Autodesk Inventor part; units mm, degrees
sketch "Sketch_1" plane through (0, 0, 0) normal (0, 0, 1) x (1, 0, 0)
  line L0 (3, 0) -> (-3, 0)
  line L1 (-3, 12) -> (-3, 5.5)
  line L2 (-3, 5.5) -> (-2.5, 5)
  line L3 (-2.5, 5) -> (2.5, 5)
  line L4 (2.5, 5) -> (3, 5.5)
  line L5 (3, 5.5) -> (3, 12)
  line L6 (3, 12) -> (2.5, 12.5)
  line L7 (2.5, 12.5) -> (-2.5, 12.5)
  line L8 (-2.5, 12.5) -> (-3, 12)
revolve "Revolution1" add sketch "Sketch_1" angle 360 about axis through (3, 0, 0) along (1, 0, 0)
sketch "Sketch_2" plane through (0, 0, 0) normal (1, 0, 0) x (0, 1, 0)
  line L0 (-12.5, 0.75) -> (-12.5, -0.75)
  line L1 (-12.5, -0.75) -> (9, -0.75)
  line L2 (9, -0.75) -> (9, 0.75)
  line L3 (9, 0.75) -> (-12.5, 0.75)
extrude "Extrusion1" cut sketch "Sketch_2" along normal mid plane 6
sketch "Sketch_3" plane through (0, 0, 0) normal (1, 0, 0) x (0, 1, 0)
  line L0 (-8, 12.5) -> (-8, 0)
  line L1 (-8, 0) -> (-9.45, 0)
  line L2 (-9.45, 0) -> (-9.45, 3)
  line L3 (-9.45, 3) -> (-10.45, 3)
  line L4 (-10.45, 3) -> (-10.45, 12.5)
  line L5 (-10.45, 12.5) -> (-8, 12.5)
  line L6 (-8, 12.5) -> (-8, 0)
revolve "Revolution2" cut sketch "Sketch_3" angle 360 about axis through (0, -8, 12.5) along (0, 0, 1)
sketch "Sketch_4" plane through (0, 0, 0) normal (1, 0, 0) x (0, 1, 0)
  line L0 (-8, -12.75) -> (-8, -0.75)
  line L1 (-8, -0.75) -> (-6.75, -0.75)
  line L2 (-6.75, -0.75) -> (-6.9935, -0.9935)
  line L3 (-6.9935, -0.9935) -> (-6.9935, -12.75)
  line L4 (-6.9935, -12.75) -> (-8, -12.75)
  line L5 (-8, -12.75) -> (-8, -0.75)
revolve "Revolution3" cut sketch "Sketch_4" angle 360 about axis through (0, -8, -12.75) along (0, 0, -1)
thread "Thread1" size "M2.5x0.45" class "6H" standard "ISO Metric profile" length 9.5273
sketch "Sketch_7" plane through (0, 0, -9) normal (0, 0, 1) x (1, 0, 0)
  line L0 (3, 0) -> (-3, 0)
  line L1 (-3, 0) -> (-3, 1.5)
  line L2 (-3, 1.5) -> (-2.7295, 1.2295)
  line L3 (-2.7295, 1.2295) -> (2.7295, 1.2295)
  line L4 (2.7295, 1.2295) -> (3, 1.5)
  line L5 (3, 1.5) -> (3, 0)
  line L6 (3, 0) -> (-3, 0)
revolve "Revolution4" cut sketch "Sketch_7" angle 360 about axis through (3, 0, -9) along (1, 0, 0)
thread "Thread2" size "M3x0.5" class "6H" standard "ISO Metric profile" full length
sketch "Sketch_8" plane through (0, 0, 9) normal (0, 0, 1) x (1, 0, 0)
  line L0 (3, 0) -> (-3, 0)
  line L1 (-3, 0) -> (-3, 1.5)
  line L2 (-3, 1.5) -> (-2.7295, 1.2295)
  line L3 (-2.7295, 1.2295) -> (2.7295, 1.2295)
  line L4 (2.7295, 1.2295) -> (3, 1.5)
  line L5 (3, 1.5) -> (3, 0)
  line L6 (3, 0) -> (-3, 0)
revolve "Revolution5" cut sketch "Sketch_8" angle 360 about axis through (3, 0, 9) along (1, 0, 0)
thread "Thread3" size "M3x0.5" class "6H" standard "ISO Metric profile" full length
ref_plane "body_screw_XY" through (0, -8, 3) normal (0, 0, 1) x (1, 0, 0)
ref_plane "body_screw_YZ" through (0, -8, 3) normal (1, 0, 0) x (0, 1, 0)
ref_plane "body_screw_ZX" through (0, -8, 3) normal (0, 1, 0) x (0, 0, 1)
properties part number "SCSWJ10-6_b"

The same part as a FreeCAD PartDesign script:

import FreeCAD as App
import Part
import Sketcher
from FreeCAD import Vector
Q = App.Units.Quantity


def add_polygon(sketch, points):
    """Adds a closed chain of lines whose ends are joined by coincident constraints."""
    first, n = sketch.GeometryCount, len(points)
    for a, b in zip(points, points[1:] + points[:1]):
        sketch.addGeometry(Part.LineSegment(App.Vector(*a, 0), App.Vector(*b, 0)), False)
    for i in range(n):
        sketch.addConstraint(Sketcher.Constraint("Coincident", first + i, 2, first + (i + 1) % n, 1))

doc = App.newDocument("Part")
body = doc.addObject("PartDesign::Body", "Body")

# Sketch on XY plane
sketch1 = body.newObject("Sketcher::SketchObject", "Sketch")
sketch1.AttachmentSupport = (doc.getObject("XY_Plane"), [""])
sketch1.MapMode = "FlatFace"
add_polygon(sketch1, [(-2.5, 12.5), (-3, 12), (-3, 5.5), (-2.5, 5), (2.5, 5), (3, 5.5), (3, 12), (2.5, 12.5)])  # lines 0-7
sketch1.addConstraint(Sketcher.Constraint("Vertical", 1))
sketch1.addConstraint(Sketcher.Constraint("Horizontal", 3))
sketch1.addConstraint(Sketcher.Constraint("Vertical", 5))
sketch1.addConstraint(Sketcher.Constraint("Horizontal", 7))
sketch1.addConstraint(Sketcher.Constraint("Symmetric", 1, 2, 4, 2, -2))
sketch1.addConstraint(Sketcher.Constraint("Perpendicular", 0, 2))
sketch1.addConstraint(Sketcher.Constraint("Perpendicular", 2, 4))
sketch1.addConstraint(Sketcher.Constraint("Perpendicular", 4, 6))
sketch1.addConstraint(Sketcher.Constraint("Horizontal", 0, 2, 5, 2))
sketch1.addConstraint(Sketcher.Constraint("Vertical", 3, 2, 6, 2))
sketch1.addConstraint(Sketcher.Constraint("Vertical", 2, 2, 7, 2))
sketch1.addConstraint(Sketcher.Constraint("DistanceX", 3, 1, 3, 2, 5.0))
sketch1.addConstraint(Sketcher.Constraint("DistanceY", 1, 2, 1, 1, 6.5))
sketch1.addConstraint(Sketcher.Constraint("DistanceX", 0, 2, -1, 1, 3.0))
sketch1.addConstraint(Sketcher.Constraint("DistanceY", -1, 1, 0, 2, 12.0))
revolution = body.newObject("PartDesign::Revolution", "Revolution")
revolution.Profile = sketch1
revolution.ReferenceAxis = (sketch1, ["H_Axis"])
revolution.Angle = 360

# Sketch on YZ plane
sketch2 = body.newObject("Sketcher::SketchObject", "Sketch001")
sketch2.AttachmentSupport = (doc.getObject("YZ_Plane"), [""])
sketch2.MapMode = "FlatFace"
add_polygon(sketch2, [(9, 0.8), (-12.5, 0.8), (-12.5, -0.8), (9, -0.8)])  # lines 0-3
sketch2.addConstraint(Sketcher.Constraint("Horizontal", 0))
sketch2.addConstraint(Sketcher.Constraint("Vertical", 1))
sketch2.addConstraint(Sketcher.Constraint("Horizontal", 2))
sketch2.addConstraint(Sketcher.Constraint("Vertical", 3))
sketch2.addConstraint(Sketcher.Constraint("DistanceX", 0, 2, 0, 1, 21.5))
sketch2.addConstraint(Sketcher.Constraint("DistanceY", 1, 2, 1, 1, 1.5))
sketch2.addConstraint(Sketcher.Constraint("DistanceX", -1, 1, 2, 2, 9.0))
sketch2.addConstraint(Sketcher.Constraint("DistanceY", -1, 1, 0, 2, 0.75))
pocket1 = body.newObject("PartDesign::Pocket", "Pocket")
pocket1.Profile = sketch2
pocket1.Length = 6
pocket1.Midplane = True

# Sketch on YZ plane
sketch3 = body.newObject("Sketcher::SketchObject", "Sketch002")
sketch3.AttachmentSupport = (doc.getObject("YZ_Plane"), [""])
sketch3.MapMode = "FlatFace"
add_polygon(sketch3, [(-8, 0), (-8, 12.5), (-10.4, 12.5), (-10.4, 3), (-9.4, 3), (-9.4, 0)])  # lines 0-5
sketch3.addGeometry(Part.LineSegment(Vector(-8, 0, 0), Vector(-8, 12.5, 0)), True)  # axis
sketch3.addConstraint(Sketcher.Constraint("Vertical", 0))
sketch3.addConstraint(Sketcher.Constraint("Horizontal", 1))
sketch3.addConstraint(Sketcher.Constraint("Vertical", 2))
sketch3.addConstraint(Sketcher.Constraint("Horizontal", 3))
sketch3.addConstraint(Sketcher.Constraint("Vertical", 4))
sketch3.addConstraint(Sketcher.Constraint("Horizontal", 5))
sketch3.addConstraint(Sketcher.Constraint("Vertical", 6))
sketch3.addConstraint(Sketcher.Constraint("Coincident", 6, 1, 5, 2))
sketch3.addConstraint(Sketcher.Constraint("PointOnObject", 4, 2, -1))
sketch3.addConstraint(Sketcher.Constraint("Horizontal", 1, 2, 6, 2))
sketch3.addConstraint(Sketcher.Constraint("DistanceX", 3, 1, 3, 2, 1.0))
sketch3.addConstraint(Sketcher.Constraint("DistanceY", 4, 2, 4, 1, 3.0))
sketch3.addConstraint(Sketcher.Constraint("DistanceY", 0, 1, 0, 2, 12.5))
sketch3.addConstraint(Sketcher.Constraint("DistanceX", 0, 2, -1, 1, 8.0))
sketch3.addConstraint(Sketcher.Constraint("DistanceX", 1, 2, 1, 1, 2.45))
groove = body.newObject("PartDesign::Groove", "Groove")
groove.Profile = sketch3
groove.ReferenceAxis = (sketch3, ["Axis0"])
groove.Angle = 360

# Sketch on YZ plane
sketch4 = body.newObject("Sketcher::SketchObject", "Sketch003")
sketch4.AttachmentSupport = (doc.getObject("YZ_Plane"), [""])
sketch4.MapMode = "FlatFace"
add_polygon(sketch4, [(-8, -0.75), (-8, -12.75), (-6.99, -12.75), (-6.99, -0.99), (-6.75, -0.75)])  # lines 0-4
sketch4.addGeometry(Part.LineSegment(Vector(-8, -0.75, 0), Vector(-8, -12.75, 0)), True)  # axis
sketch4.addConstraint(Sketcher.Constraint("Vertical", 0))
sketch4.addConstraint(Sketcher.Constraint("Horizontal", 1))
sketch4.addConstraint(Sketcher.Constraint("Vertical", 2))
sketch4.addConstraint(Sketcher.Constraint("Horizontal", 4))
sketch4.addConstraint(Sketcher.Constraint("Vertical", 5))
sketch4.addConstraint(Sketcher.Constraint("Coincident", 5, 1, 4, 2))
sketch4.addConstraint(Sketcher.Constraint("Horizontal", 1, 2, 5, 2))
sketch4.addConstraint(Sketcher.Constraint("DistanceY", 0, 2, 0, 1, 12.0))
sketch4.addConstraint(Sketcher.Constraint("Angle", 3, Q("45 deg")))
sketch4.addConstraint(Sketcher.Constraint("DistanceX", 0, 2, -1, 1, 8.0))
sketch4.addConstraint(Sketcher.Constraint("DistanceX", 4, 2, 4, 1, 1.25))
sketch4.addConstraint(Sketcher.Constraint("DistanceY", 0, 2, -1, 1, 12.75))
sketch4.addConstraint(Sketcher.Constraint("DistanceX", 1, 1, 1, 2, 1.0065))
groove2 = body.newObject("PartDesign::Groove", "Groove001")
groove2.Profile = sketch4
groove2.ReferenceAxis = (sketch4, ["Axis0"])
groove2.Angle = 360

# Sketch on XY plane
sketch5 = body.newObject("Sketcher::SketchObject", "Sketch004")
sketch5.AttachmentSupport = (doc.getObject("XY_Plane"), [""])
sketch5.MapMode = "FlatFace"
sketch5.AttachmentOffset = App.Placement(Vector(0, 0, -9), App.Rotation())
add_polygon(sketch5, [(-3, 0), (3, 0), (3, 1.5), (2.73, 1.23), (-2.73, 1.23), (-3, 1.5)])  # lines 0-5
sketch5.addConstraint(Sketcher.Constraint("Horizontal", 0))
sketch5.addConstraint(Sketcher.Constraint("Vertical", 1))
sketch5.addConstraint(Sketcher.Constraint("Horizontal", 3))
sketch5.addConstraint(Sketcher.Constraint("Vertical", 5))
sketch5.addConstraint(Sketcher.Constraint("Symmetric", 0, 2, 5, 2, -1, 1))
sketch5.addConstraint(Sketcher.Constraint("Perpendicular", 2, 4))
sketch5.addConstraint(Sketcher.Constraint("Horizontal", 1, 2, 4, 2))
sketch5.addConstraint(Sketcher.Constraint("Equal", 2, 4))
sketch5.addConstraint(Sketcher.Constraint("DistanceX", 0, 1, 0, 2, 6.0))
sketch5.addConstraint(Sketcher.Constraint("DistanceY", 1, 1, 1, 2, 1.5))
sketch5.addConstraint(Sketcher.Constraint("DistanceX", 3, 2, 3, 1, 5.459))
groove3 = body.newObject("PartDesign::Groove", "Groove002")
groove3.Profile = sketch5
groove3.ReferenceAxis = (sketch5, ["H_Axis"])
groove3.Angle = 360

# Sketch on XY plane
sketch6 = body.newObject("Sketcher::SketchObject", "Sketch005")
sketch6.AttachmentSupport = (doc.getObject("XY_Plane"), [""])
sketch6.MapMode = "FlatFace"
sketch6.AttachmentOffset = App.Placement(Vector(0, 0, 9), App.Rotation())
add_polygon(sketch6, [(-3, 0), (3, 0), (3, 1.5), (2.73, 1.23), (-2.73, 1.23), (-3, 1.5)])  # lines 0-5
sketch6.addConstraint(Sketcher.Constraint("Horizontal", 0))
sketch6.addConstraint(Sketcher.Constraint("Vertical", 1))
sketch6.addConstraint(Sketcher.Constraint("Horizontal", 3))
sketch6.addConstraint(Sketcher.Constraint("Vertical", 5))
sketch6.addConstraint(Sketcher.Constraint("Symmetric", 0, 2, 5, 2, -1, 1))
sketch6.addConstraint(Sketcher.Constraint("Perpendicular", 2, 4))
sketch6.addConstraint(Sketcher.Constraint("Horizontal", 1, 2, 4, 2))
sketch6.addConstraint(Sketcher.Constraint("Equal", 2, 4))
sketch6.addConstraint(Sketcher.Constraint("DistanceX", 0, 1, 0, 2, 6.0))
sketch6.addConstraint(Sketcher.Constraint("DistanceY", 1, 1, 1, 2, 1.5))
sketch6.addConstraint(Sketcher.Constraint("DistanceX", 3, 2, 3, 1, 5.459))
groove4 = body.newObject("PartDesign::Groove", "Groove003")
groove4.Profile = sketch6
groove4.ReferenceAxis = (sketch6, ["H_Axis"])
groove4.Angle = 360

doc.recompute()
